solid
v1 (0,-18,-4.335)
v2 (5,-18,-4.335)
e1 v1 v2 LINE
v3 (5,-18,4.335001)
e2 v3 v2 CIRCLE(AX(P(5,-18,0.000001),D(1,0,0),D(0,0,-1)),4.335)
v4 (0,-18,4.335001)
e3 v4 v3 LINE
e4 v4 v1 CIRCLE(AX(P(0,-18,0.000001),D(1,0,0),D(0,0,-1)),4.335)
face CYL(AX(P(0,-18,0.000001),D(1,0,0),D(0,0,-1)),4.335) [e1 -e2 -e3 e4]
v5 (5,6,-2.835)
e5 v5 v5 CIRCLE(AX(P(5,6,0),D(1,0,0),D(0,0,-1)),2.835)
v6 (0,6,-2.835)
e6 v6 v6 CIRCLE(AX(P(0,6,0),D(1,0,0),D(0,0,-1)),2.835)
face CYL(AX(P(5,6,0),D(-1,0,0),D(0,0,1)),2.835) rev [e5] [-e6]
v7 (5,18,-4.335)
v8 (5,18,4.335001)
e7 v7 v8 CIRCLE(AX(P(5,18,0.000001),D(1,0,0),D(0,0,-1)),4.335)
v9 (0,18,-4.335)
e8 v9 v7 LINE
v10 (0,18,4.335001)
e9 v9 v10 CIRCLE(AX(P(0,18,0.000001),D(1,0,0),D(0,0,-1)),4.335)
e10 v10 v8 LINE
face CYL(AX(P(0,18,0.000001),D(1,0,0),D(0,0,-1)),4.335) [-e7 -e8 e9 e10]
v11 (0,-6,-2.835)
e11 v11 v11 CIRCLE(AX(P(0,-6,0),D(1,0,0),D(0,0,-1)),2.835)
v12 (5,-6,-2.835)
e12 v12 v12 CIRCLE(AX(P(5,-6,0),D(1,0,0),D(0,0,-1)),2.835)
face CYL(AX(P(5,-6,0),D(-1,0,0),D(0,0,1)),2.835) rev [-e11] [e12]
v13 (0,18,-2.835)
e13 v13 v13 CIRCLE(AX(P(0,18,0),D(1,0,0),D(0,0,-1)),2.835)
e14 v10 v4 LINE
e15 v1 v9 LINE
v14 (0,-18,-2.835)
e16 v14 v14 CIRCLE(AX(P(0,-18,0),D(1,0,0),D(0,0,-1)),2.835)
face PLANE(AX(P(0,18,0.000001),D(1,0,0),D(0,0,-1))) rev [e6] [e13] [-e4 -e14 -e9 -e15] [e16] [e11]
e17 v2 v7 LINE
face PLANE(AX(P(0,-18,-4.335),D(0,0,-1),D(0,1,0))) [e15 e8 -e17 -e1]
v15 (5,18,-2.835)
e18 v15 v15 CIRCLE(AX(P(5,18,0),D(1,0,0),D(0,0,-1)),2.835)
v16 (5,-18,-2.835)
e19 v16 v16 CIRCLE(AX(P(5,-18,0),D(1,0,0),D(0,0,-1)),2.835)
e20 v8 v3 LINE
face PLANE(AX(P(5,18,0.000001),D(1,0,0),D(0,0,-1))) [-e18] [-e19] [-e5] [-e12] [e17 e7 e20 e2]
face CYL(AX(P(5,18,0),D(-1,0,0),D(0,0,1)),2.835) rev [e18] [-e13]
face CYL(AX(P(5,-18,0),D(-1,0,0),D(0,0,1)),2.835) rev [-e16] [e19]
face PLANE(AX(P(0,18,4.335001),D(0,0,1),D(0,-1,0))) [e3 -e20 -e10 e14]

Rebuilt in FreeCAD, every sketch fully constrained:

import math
import FreeCAD as App
import Part
import Sketcher
Q = App.Units.Quantity

doc = App.newDocument("Part")
body = doc.addObject("PartDesign::Body", "Body")

sketch1 = body.newObject("Sketcher::SketchObject", "Sketch")
sketch1.AttachmentSupport = (doc.getObject("YZ_Plane"), [""])
sketch1.MapMode = "FlatFace"
sketch1.addGeometry([
    Part.LineSegment(App.Vector(18, 4.8, 0), App.Vector(-18, 4.8, 0)),
    Part.ArcOfCircle(Part.Circle(App.Vector(-18, 0, 0), App.Vector(0, 0, 1), 4.8), math.radians(90), math.radians(270)),
    Part.LineSegment(App.Vector(-18, -4.8, 0), App.Vector(18, -4.8, 0)),
    Part.ArcOfCircle(Part.Circle(App.Vector(18, 0, 0), App.Vector(0, 0, 1), 4.8), math.radians(-90), math.radians(90)),
    Part.Circle(App.Vector(-18, 0, 0), App.Vector(0, 0, 1), 2.8),
    Part.Circle(App.Vector(-6, 0, 0), App.Vector(0, 0, 1), 2.8),
    Part.Circle(App.Vector(6, 0, 0), App.Vector(0, 0, 1), 2.8),
    Part.Circle(App.Vector(18, 0, 0), App.Vector(0, 0, 1), 2.8),
], False)
sketch1.addConstraint([
    Sketcher.Constraint("Tangent", 0, 2, 1, 1),
    Sketcher.Constraint("Tangent", 1, 2, 2, 1),
    Sketcher.Constraint("Tangent", 2, 2, 3, 1),
    Sketcher.Constraint("Tangent", 3, 2, 0, 1),
    Sketcher.Constraint("Horizontal", 0),
    Sketcher.Constraint("Horizontal", 2),
    Sketcher.Constraint("Coincident", 4, 3, 1, 3),
    Sketcher.Constraint("Coincident", 7, 3, 3, 3),
    Sketcher.Constraint("Equal", 4, 5),
    Sketcher.Constraint("Equal", 5, 6),
    Sketcher.Constraint("Equal", 6, 7),
    Sketcher.Constraint("Symmetric", 1, 3, 3, 3, -1, 1),
    Sketcher.Constraint("Symmetric", 5, 3, 6, 3, -1, 1),
    Sketcher.Constraint("PointOnObject", 5, 3, -1),
    Sketcher.Constraint("Diameter", 4, Q("5.67 mm")),
    Sketcher.Constraint("DistanceX", 0, 2, 0, 1, Q("36 mm")),
    Sketcher.Constraint("DistanceX", 5, 3, -1, 1, Q("6 mm")),
    Sketcher.Constraint("Radius", 1, Q("4.835 mm")),
])
pad1 = body.newObject("PartDesign::Pad", "Pad")
pad1.Profile = sketch1
pad1.Length = 5

sketch2 = body.newObject("Sketcher::SketchObject", "Sketch001")
sketch2.AttachmentSupport = (doc.getObject("YZ_Plane"), [""])
sketch2.MapMode = "FlatFace"
sketch2.addGeometry([
    Part.LineSegment(App.Vector(18, 4.8, 0), App.Vector(-18, 4.8, 0)),
    Part.ArcOfCircle(Part.Circle(App.Vector(-18, 0, 0), App.Vector(0, 0, 1), 4.8), math.radians(90), math.radians(270)),
    Part.LineSegment(App.Vector(-18, -4.8, 0), App.Vector(18, -4.8, 0)),
    Part.ArcOfCircle(Part.Circle(App.Vector(18, 0, 0), App.Vector(0, 0, 1), 4.8), math.radians(-90), math.radians(90)),
    Part.LineSegment(App.Vector(-18, 4.3, 0), App.Vector(18, 4.3, 0)),
    Part.ArcOfCircle(Part.Circle(App.Vector(18, 0, 0), App.Vector(0, 0, 1), 4.3), math.radians(-90), math.radians(90)),
    Part.LineSegment(App.Vector(18, -4.3, 0), App.Vector(-18, -4.3, 0)),
    Part.ArcOfCircle(Part.Circle(App.Vector(-18, 0, 0), App.Vector(0, 0, 1), 4.3), math.radians(90), math.radians(270)),
], False)
sketch2.addConstraint([
    Sketcher.Constraint("Tangent", 0, 2, 1, 1),
    Sketcher.Constraint("Tangent", 1, 2, 2, 1),
    Sketcher.Constraint("Tangent", 2, 2, 3, 1),
    Sketcher.Constraint("Tangent", 3, 2, 0, 1),
    Sketcher.Constraint("Tangent", 4, 2, 5, 2),
    Sketcher.Constraint("Tangent", 5, 1, 6, 1),
    Sketcher.Constraint("Tangent", 6, 2, 7, 2),
    Sketcher.Constraint("Tangent", 7, 1, 4, 1),
    Sketcher.Constraint("Horizontal", 0),
    Sketcher.Constraint("Horizontal", 2),
    Sketcher.Constraint("Horizontal", 4),
    Sketcher.Constraint("Horizontal", 6),
    Sketcher.Constraint("Coincident", 5, 3, 3, 3),
    Sketcher.Constraint("Symmetric", 1, 3, 3, 3, -1, 1),
    Sketcher.Constraint("Vertical", 7, 3, 0, 2),
    Sketcher.Constraint("DistanceX", 0, 2, 0, 1, Q("36 mm")),
    Sketcher.Constraint("Radius", 1, Q("4.835 mm")),
    Sketcher.Constraint("Radius", 5, Q("4.335 mm")),
])
pocket1 = body.newObject("PartDesign::Pocket", "Pocket")
pocket1.Profile = sketch2
pocket1.Length = 5
pocket1.Reversed = True

doc.recompute()
